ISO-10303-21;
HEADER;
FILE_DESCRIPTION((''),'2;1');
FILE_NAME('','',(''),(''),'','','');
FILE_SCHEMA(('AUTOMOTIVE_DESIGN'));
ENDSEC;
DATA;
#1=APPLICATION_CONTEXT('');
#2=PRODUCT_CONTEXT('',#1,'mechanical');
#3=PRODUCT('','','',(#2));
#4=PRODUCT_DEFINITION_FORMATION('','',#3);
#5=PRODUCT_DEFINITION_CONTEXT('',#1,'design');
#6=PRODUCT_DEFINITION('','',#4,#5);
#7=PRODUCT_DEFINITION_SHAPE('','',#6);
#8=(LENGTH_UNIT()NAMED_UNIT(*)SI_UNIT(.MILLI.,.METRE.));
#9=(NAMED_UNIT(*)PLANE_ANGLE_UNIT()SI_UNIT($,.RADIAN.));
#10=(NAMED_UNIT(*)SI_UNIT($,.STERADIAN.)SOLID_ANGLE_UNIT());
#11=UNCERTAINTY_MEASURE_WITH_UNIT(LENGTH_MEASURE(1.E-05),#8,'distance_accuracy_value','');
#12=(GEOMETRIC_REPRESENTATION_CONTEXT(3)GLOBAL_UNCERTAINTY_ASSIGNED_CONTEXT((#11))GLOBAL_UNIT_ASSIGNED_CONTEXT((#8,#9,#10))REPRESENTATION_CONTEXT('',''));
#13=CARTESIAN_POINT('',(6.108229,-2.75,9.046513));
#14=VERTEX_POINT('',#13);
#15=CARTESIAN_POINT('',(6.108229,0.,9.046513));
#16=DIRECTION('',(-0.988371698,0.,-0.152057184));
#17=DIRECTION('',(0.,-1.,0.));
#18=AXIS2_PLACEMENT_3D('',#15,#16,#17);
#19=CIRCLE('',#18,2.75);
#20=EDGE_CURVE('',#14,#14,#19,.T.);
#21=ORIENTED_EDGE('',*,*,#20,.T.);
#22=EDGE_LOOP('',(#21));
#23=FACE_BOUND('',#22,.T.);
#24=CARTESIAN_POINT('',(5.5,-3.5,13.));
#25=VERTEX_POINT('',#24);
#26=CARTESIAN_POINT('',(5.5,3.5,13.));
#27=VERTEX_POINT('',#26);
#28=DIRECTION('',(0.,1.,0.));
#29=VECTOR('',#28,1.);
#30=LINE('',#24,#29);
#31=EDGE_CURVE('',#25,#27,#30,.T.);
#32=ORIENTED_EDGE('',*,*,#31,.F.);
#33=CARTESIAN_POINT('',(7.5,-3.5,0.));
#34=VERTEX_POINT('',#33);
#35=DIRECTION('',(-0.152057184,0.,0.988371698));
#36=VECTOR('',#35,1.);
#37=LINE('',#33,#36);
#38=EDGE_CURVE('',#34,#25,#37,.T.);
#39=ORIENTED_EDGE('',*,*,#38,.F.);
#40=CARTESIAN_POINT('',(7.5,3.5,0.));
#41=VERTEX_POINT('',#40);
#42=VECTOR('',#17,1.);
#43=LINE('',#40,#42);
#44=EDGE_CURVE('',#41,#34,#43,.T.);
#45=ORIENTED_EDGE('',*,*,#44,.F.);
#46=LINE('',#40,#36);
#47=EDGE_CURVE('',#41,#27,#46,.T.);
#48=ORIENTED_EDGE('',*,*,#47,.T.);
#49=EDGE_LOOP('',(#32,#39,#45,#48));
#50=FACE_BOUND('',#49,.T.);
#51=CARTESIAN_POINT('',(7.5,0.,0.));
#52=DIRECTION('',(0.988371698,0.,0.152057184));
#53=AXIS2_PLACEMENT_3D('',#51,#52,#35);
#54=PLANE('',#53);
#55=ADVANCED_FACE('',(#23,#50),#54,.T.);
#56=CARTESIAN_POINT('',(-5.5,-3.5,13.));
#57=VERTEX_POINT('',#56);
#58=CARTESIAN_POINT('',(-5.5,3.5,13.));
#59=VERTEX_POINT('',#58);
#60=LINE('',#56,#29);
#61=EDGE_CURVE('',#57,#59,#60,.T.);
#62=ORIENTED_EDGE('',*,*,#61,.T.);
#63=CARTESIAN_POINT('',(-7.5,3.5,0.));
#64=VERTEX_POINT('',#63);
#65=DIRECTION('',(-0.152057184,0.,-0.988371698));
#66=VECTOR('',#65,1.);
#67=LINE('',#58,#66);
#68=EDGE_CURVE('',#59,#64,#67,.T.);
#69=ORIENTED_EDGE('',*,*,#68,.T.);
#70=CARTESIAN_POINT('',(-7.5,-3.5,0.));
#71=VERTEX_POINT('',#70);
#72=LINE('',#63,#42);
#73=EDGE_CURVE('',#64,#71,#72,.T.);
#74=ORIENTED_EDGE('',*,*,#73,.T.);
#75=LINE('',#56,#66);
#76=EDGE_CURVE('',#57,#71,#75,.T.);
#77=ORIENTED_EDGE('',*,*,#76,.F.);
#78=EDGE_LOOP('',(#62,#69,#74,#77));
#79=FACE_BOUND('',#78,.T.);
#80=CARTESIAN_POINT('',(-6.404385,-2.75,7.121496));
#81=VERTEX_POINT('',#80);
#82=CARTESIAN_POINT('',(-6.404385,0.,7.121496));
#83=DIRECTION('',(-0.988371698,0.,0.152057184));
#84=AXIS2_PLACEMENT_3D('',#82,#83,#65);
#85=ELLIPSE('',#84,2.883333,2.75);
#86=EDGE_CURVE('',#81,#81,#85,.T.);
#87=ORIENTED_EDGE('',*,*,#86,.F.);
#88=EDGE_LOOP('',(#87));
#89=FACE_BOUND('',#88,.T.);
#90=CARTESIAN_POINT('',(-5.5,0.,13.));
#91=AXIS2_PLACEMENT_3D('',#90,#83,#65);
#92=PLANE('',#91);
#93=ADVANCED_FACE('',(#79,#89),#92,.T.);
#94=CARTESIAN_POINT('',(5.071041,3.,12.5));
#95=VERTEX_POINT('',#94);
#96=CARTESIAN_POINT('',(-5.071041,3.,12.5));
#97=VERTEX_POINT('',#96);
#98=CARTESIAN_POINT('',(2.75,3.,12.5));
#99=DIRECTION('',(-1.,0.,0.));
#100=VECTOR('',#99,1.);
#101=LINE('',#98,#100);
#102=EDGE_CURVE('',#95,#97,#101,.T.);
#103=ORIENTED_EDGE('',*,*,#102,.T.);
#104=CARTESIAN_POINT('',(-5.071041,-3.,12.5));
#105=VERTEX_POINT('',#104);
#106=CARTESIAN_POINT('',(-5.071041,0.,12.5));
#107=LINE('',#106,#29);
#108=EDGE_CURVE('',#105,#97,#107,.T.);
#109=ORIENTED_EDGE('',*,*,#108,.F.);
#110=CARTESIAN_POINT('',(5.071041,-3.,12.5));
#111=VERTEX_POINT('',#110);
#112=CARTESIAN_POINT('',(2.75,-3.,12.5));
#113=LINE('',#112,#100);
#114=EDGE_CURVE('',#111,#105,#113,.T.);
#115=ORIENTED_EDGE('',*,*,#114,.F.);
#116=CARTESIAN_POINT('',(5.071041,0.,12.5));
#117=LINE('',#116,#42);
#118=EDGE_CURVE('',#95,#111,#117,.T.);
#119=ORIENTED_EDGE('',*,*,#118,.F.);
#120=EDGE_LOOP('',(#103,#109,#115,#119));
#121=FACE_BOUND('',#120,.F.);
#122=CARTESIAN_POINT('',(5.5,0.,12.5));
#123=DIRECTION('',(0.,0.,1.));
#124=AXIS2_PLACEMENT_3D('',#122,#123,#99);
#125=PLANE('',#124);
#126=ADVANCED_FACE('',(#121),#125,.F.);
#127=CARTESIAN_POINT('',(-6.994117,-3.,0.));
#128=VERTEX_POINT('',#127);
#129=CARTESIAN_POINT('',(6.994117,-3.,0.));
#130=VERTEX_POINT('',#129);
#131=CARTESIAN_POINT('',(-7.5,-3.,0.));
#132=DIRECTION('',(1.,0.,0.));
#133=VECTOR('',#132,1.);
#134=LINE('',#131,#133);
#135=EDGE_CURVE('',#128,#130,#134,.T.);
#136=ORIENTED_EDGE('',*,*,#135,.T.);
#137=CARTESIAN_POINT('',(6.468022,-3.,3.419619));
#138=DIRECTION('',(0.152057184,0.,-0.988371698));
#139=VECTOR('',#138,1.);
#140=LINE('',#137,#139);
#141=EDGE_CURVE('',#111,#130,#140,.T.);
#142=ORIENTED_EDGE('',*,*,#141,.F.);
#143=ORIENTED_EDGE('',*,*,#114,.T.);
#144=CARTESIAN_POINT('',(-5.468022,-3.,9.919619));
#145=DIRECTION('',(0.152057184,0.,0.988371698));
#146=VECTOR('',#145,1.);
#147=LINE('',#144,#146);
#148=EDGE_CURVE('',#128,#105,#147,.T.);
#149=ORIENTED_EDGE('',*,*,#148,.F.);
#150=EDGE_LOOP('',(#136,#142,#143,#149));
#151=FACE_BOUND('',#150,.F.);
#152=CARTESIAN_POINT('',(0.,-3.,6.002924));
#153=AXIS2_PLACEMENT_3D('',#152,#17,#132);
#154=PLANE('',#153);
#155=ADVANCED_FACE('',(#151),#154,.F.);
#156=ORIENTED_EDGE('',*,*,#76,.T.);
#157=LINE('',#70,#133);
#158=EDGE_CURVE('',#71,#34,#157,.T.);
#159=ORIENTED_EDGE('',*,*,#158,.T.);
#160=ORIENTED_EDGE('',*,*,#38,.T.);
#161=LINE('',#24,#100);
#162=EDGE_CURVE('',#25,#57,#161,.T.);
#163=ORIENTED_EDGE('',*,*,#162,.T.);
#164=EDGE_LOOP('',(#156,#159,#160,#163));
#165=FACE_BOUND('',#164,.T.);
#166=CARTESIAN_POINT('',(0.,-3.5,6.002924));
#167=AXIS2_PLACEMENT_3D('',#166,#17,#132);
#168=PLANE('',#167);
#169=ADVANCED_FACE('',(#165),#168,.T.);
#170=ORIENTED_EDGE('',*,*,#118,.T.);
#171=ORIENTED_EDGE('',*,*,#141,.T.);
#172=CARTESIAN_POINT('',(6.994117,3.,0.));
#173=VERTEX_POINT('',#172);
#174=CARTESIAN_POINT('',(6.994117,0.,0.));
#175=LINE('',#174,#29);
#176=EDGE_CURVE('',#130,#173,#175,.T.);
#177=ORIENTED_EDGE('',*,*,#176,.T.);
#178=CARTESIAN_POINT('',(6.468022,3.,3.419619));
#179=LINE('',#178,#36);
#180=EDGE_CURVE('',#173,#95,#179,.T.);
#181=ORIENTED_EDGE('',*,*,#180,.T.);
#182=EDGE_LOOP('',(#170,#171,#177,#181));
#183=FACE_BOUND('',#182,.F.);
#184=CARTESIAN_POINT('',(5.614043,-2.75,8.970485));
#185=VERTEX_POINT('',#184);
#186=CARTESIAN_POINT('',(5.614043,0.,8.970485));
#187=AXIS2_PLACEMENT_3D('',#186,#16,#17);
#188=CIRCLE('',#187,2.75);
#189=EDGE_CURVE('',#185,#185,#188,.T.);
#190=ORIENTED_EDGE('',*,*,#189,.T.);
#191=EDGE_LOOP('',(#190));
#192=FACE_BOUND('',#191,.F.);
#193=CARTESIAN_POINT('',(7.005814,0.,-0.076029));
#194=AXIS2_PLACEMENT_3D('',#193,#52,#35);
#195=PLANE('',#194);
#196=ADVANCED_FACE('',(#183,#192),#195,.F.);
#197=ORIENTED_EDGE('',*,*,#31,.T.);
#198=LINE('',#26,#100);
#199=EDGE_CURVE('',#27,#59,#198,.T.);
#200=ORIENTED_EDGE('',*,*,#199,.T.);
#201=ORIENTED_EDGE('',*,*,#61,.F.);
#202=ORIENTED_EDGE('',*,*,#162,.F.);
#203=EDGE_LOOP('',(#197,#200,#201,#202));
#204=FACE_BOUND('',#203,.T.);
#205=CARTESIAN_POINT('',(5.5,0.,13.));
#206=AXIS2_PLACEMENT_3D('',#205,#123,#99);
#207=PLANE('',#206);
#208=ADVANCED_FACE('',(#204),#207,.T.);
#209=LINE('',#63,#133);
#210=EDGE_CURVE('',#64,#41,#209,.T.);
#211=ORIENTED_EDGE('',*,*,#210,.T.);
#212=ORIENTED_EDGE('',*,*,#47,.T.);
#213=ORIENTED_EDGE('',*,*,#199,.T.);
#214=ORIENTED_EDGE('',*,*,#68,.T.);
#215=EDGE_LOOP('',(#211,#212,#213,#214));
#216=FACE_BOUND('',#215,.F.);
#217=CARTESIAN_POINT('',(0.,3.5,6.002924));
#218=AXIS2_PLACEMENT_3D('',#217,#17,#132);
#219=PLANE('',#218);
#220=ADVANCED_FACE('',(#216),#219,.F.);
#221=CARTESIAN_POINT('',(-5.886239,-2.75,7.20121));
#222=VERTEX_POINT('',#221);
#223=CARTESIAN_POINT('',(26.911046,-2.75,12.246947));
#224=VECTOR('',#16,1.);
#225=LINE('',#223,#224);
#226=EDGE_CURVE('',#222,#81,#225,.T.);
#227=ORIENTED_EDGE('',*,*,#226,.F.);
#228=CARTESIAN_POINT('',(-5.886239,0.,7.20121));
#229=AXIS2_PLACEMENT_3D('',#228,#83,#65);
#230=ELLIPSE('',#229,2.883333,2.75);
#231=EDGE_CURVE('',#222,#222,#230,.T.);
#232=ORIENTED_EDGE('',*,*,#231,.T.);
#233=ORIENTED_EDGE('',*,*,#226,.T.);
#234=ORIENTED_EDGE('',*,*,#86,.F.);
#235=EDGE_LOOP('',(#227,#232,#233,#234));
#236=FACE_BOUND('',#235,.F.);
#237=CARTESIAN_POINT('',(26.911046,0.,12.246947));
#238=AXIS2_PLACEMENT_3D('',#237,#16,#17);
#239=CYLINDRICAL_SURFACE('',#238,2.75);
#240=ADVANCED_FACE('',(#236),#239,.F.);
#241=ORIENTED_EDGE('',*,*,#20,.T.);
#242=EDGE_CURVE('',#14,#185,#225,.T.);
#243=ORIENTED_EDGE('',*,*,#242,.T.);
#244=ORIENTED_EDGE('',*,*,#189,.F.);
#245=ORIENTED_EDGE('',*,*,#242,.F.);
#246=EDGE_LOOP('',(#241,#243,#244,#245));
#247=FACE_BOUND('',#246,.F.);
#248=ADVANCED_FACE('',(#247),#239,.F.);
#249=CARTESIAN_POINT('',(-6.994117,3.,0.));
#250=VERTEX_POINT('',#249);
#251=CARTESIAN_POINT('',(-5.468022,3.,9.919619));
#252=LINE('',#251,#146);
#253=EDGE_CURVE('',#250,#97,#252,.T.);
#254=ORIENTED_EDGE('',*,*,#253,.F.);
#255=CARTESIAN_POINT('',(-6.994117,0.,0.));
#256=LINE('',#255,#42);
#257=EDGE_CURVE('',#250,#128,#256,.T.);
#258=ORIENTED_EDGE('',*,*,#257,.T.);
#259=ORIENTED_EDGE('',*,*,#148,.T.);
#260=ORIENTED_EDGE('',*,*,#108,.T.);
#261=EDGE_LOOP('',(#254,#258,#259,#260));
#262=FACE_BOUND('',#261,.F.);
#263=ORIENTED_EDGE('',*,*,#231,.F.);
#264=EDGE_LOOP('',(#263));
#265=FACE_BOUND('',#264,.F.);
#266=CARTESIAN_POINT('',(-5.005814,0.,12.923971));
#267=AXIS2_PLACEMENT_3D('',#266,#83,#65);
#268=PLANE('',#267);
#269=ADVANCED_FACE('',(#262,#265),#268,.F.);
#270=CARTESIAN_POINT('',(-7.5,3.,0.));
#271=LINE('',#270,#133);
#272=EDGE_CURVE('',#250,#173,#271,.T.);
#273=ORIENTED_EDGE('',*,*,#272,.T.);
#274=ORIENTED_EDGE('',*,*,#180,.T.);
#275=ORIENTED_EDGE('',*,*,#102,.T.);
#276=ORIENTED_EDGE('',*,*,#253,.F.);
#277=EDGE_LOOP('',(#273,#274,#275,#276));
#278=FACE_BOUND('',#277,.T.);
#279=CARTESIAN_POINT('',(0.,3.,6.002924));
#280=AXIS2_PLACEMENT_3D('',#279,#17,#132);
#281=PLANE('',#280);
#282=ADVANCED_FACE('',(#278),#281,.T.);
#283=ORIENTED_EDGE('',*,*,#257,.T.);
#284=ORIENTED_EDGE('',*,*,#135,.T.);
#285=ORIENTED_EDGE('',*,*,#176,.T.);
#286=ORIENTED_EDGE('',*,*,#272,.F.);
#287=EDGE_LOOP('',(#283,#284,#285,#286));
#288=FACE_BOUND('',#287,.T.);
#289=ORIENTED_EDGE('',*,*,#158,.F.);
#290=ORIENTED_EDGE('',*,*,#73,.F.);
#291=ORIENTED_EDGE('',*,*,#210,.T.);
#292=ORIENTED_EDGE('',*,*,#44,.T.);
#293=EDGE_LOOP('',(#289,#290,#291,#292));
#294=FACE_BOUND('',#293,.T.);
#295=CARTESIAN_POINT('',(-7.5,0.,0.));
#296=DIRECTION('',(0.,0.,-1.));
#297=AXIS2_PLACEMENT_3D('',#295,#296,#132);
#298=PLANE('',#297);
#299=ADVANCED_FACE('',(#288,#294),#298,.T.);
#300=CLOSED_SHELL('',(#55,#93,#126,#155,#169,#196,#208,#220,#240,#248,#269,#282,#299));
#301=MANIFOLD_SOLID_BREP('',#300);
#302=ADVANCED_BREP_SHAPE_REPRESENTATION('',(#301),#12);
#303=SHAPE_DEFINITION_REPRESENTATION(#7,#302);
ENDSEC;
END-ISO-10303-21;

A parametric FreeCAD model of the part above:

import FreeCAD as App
import Part
import Sketcher

V = App.Vector
Q = App.Units.Quantity


def faces_at(feature, points):
    """Names of the faces that lie closest to the given points."""
    faces = feature.Shape.Faces
    near = lambda p: min(range(len(faces)), key=lambda i: faces[i].distToShape(Part.Vertex(*p))[0])
    return sorted({f"Face{near(p) + 1}" for p in points})


def add_polygon(sketch, points):
    """Adds a closed chain of lines whose ends are joined by coincident constraints."""
    first, n = sketch.GeometryCount, len(points)
    for a, b in zip(points, points[1:] + points[:1]):
        sketch.addGeometry(Part.LineSegment(App.Vector(*a, 0), App.Vector(*b, 0)), False)
    for i in range(n):
        sketch.addConstraint(Sketcher.Constraint("Coincident", first + i, 2, first + (i + 1) % n, 1))

doc = App.newDocument("Part")
body = doc.addObject("PartDesign::Body", "Body")

sketch1 = doc.addObject("Sketcher::SketchObject", "Sketch")
body.addObject(sketch1)
sketch1.AttachmentSupport = (doc.XZ_Plane, [""])
sketch1.MapMode = "FlatFace"
add_polygon(sketch1, [(-6, 13), (-8, 0), (8, 0), (6, 13)])
sketch1.addConstraint(Sketcher.Constraint("Horizontal", 1))
sketch1.addConstraint(Sketcher.Constraint("Horizontal", 3))
sketch1.addConstraint(Sketcher.Constraint("Symmetric", 0, 2, 1, 2, -1, 1))
sketch1.addConstraint(Sketcher.Constraint("Equal", 0, 2))
sketch1.addConstraint(Sketcher.Constraint("DistanceX", 1, 1, 1, 2, Q("15 mm")))
sketch1.addConstraint(Sketcher.Constraint("DistanceX", 3, 2, 3, 1, Q("11 mm")))
sketch1.addConstraint(Sketcher.Constraint("DistanceY", -1, 1, 2, 2, Q("13 mm")))
pad1 = doc.addObject("PartDesign::Pad", "Pad")
body.addObject(pad1)
pad1.Profile = sketch1
pad1.Length = 7
pad1.Midplane = True
doc.recompute()

thickness = doc.addObject("PartDesign::Thickness", "Thickness")
body.addObject(thickness)
thickness.Base = (pad1, faces_at(pad1, [(0, 0, 0)]))
thickness.Value = 0.5
thickness.Reversed = True
thickness.Join = "Arc"

sketch2 = doc.addObject("Sketcher::SketchObject", "Sketch001")
body.addObject(sketch2)
sketch2.Placement = App.Placement(V(7.32659, 0, 1.127168), App.Rotation(V(0, 1, 0), V(-0.152057184, 0, 0.988371698), V(0.988371698, 0, 0.152057184), "ZXY"))
sketch2.addGeometry(Part.Circle(V(0, 8, 0), V(0, 0, 1), 2.8), False)
sketch2.addConstraint(Sketcher.Constraint("PointOnObject", 0, 3, -2))
sketch2.addConstraint(Sketcher.Constraint("Diameter", 0, Q("5.5 mm")))
sketch2.addConstraint(Sketcher.Constraint("DistanceY", -1, 1, 0, 3, Q("8.012518 mm")))
doc.recompute()
hole = doc.addObject("PartDesign::Hole", "Hole")
body.addObject(hole)
hole.Profile = sketch2
hole.ThreadType = "None"
hole.Diameter = 5.5
hole.DepthType = "ThroughAll"

doc.recompute()
